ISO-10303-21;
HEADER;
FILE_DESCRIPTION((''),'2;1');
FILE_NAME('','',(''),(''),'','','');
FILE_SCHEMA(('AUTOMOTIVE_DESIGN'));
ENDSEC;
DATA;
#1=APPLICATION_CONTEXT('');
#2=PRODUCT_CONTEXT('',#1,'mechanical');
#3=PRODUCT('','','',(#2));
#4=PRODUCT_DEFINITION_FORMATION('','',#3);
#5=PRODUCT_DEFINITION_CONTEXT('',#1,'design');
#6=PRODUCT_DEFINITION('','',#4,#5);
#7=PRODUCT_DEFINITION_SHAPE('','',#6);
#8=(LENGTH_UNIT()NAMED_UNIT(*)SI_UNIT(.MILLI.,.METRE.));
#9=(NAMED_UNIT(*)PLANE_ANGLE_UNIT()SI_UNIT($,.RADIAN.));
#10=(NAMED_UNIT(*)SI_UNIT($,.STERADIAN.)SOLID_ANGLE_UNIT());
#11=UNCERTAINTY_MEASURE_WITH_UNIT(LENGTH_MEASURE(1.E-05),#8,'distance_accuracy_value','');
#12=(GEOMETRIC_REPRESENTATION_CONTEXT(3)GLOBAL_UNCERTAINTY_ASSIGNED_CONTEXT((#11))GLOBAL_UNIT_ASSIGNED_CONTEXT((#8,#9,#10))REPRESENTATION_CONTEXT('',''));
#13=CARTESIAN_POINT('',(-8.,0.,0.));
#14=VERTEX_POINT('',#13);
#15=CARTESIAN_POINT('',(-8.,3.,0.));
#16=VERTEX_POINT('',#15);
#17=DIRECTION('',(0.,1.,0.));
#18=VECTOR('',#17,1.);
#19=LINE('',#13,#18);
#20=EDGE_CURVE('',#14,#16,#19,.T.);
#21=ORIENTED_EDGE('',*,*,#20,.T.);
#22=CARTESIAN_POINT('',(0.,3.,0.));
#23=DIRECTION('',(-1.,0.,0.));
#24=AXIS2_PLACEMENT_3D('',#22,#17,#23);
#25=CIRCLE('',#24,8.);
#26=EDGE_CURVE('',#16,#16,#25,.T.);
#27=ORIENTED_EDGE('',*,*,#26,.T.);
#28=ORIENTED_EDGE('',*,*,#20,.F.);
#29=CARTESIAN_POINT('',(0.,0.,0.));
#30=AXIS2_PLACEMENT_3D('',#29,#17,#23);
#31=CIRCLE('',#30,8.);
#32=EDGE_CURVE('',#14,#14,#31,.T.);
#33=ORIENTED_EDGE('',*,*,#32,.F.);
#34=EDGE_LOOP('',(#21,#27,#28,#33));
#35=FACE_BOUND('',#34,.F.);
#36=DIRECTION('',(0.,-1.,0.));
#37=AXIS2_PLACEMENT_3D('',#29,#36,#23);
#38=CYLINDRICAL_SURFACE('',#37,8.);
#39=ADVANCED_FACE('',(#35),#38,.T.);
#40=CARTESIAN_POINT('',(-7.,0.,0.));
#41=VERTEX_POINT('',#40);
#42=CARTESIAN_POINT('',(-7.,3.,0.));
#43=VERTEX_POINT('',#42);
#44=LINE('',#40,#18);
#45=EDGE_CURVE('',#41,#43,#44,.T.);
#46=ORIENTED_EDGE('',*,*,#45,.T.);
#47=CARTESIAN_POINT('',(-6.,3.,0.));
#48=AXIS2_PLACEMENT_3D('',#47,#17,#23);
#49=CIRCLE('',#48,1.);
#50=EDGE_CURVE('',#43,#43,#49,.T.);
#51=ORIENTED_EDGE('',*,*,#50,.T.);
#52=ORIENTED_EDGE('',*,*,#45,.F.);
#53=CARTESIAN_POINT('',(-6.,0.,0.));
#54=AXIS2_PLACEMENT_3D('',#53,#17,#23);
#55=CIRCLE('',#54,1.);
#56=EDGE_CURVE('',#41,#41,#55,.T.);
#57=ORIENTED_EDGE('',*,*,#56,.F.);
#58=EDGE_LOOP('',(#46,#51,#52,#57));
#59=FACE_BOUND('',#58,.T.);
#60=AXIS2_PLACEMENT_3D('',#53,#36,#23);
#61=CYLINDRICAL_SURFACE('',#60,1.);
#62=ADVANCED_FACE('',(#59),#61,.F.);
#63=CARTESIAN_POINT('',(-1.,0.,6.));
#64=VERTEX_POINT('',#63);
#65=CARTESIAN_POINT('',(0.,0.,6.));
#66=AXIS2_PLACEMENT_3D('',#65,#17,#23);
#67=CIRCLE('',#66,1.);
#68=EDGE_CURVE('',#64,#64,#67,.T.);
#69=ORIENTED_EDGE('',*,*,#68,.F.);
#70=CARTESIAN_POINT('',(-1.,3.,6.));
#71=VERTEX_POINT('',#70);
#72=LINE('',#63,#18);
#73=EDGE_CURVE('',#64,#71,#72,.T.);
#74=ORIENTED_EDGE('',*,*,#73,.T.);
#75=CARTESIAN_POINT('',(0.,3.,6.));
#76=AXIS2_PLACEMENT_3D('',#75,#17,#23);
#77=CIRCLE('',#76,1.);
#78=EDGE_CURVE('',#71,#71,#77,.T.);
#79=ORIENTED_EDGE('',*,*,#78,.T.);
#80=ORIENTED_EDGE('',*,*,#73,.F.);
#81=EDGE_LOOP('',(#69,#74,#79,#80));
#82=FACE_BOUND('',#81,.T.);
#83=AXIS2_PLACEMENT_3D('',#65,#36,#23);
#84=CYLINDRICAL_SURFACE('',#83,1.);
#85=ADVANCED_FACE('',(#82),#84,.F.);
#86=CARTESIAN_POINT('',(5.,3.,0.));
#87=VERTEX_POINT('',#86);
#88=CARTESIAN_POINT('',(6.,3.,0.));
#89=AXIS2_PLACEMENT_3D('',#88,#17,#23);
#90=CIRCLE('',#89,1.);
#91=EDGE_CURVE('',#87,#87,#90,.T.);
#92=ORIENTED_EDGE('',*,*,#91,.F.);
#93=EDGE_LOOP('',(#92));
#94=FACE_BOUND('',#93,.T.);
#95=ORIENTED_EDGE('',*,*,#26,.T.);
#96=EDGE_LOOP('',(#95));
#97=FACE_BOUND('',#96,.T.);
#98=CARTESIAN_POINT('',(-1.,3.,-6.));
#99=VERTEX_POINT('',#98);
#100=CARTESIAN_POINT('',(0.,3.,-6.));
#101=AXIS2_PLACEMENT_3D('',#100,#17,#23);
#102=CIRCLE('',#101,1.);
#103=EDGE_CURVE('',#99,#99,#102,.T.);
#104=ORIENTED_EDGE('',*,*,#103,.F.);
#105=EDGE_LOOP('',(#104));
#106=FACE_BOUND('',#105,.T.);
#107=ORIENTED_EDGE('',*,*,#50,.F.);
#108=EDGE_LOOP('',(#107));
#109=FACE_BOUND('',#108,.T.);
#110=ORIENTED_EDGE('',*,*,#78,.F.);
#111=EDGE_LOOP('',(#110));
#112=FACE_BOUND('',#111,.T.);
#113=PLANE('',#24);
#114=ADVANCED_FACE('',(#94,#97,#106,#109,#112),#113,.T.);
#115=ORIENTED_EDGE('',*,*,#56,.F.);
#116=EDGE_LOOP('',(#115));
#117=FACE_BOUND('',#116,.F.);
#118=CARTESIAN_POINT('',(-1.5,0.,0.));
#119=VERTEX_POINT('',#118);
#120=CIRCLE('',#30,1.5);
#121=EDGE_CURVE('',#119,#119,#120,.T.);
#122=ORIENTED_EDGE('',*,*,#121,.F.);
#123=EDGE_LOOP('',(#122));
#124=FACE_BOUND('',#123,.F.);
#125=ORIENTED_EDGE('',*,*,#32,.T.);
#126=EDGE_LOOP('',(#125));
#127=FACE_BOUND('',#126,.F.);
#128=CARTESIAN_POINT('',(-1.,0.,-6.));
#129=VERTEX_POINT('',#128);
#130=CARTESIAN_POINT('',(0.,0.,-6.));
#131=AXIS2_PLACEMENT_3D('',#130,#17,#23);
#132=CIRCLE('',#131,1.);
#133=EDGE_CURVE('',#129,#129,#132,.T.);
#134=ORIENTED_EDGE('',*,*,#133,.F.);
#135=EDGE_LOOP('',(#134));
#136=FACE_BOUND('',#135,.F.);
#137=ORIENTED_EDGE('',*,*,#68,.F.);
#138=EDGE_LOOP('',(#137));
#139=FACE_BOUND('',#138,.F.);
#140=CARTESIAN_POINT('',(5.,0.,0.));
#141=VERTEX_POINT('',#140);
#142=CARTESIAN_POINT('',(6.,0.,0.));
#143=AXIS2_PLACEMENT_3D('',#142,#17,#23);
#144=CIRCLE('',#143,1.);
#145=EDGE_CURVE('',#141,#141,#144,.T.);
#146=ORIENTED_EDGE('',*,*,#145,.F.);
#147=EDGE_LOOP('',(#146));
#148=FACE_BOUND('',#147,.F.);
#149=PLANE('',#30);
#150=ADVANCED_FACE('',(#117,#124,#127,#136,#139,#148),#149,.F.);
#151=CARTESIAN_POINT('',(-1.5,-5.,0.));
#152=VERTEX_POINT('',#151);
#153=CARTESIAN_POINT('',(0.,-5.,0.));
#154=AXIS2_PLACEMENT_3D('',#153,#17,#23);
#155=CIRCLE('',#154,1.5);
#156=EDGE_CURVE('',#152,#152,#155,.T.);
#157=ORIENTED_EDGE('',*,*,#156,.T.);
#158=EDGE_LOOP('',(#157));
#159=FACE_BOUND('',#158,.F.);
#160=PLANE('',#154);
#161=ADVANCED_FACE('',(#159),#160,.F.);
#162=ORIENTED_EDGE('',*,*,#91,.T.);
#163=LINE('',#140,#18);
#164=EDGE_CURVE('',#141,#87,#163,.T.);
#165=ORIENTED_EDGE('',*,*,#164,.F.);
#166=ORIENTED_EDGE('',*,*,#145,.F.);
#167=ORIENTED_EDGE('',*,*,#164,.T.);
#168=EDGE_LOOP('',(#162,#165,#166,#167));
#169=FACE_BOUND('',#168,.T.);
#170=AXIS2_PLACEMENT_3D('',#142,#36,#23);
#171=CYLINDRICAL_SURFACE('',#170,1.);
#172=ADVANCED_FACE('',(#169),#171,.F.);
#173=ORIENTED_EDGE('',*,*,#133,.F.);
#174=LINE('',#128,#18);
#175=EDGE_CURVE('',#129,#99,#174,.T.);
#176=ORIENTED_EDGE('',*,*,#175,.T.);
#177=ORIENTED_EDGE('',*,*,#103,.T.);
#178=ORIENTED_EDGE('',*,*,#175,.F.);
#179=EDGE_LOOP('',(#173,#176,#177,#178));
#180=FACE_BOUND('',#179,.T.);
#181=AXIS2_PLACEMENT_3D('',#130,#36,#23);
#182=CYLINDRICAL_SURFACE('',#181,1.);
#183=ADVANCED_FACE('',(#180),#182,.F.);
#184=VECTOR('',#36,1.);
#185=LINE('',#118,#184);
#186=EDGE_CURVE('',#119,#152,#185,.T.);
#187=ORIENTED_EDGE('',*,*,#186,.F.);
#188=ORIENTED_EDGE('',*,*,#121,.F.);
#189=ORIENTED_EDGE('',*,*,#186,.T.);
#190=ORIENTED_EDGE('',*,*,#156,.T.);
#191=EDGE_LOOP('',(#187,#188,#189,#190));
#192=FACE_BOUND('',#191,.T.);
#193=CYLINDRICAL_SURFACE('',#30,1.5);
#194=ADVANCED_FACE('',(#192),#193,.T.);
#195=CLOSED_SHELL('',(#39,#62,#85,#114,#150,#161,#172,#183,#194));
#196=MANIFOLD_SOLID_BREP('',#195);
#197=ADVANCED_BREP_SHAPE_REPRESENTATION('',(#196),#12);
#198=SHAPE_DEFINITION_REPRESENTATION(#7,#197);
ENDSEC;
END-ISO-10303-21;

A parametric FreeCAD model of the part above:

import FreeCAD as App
import Part
import Sketcher
Q = App.Units.Quantity

doc = App.newDocument("Part")
body = doc.addObject("PartDesign::Body", "Body")

# Sketch on XZ plane
sketch1 = body.newObject("Sketcher::SketchObject", "Sketch")
sketch1.AttachmentSupport = (doc.getObject("XZ_Plane"), [""])
sketch1.MapMode = "FlatFace"
sketch1.addGeometry(Part.Circle(App.Vector(0, 0, 0), App.Vector(0, 0, 1), 8), False)
sketch1.addGeometry(Part.Circle(App.Vector(0, -6, 0), App.Vector(0, 0, 1), 1), False)
sketch1.addGeometry(Part.Circle(App.Vector(6, 0, 0), App.Vector(0, 0, 1), 1), False)
sketch1.addGeometry(Part.Circle(App.Vector(0, 0, 0), App.Vector(0, 0, 1), 1.5), False)
sketch1.addGeometry(Part.Circle(App.Vector(-6, 0, 0), App.Vector(0, 0, 1), 1), False)
sketch1.addGeometry(Part.Circle(App.Vector(0, 6, 0), App.Vector(0, 0, 1), 1), False)
sketch1.addConstraint(Sketcher.Constraint("Coincident", 0, 3, -1, 1))
sketch1.addConstraint(Sketcher.Constraint("Coincident", 3, 3, -1, 1))
sketch1.addConstraint(Sketcher.Constraint("Equal", 1, 2))
sketch1.addConstraint(Sketcher.Constraint("Equal", 2, 4))
sketch1.addConstraint(Sketcher.Constraint("Equal", 4, 5))
sketch1.addConstraint(Sketcher.Constraint("Symmetric", 2, 3, 4, 3, -1, 1))
sketch1.addConstraint(Sketcher.Constraint("Symmetric", 1, 3, 5, 3, -1, 1))
sketch1.addConstraint(Sketcher.Constraint("PointOnObject", 1, 3, -2))
sketch1.addConstraint(Sketcher.Constraint("PointOnObject", 2, 3, -1))
sketch1.addConstraint(Sketcher.Constraint("Diameter", 0, Q("16 mm")))
sketch1.addConstraint(Sketcher.Constraint("Diameter", 1, Q("2 mm")))
sketch1.addConstraint(Sketcher.Constraint("Diameter", 3, Q("3 mm")))
sketch1.addConstraint(Sketcher.Constraint("DistanceY", 1, 3, -1, 1, Q("6 mm")))
sketch1.addConstraint(Sketcher.Constraint("DistanceX", -1, 1, 2, 3, Q("6 mm")))
pad1 = body.newObject("PartDesign::Pad", "Pad")
pad1.Profile = sketch1
pad1.Length = 3
pad1.Reversed = True

# Sketch on XZ plane
sketch2 = body.newObject("Sketcher::SketchObject", "Sketch001")
sketch2.AttachmentSupport = (doc.getObject("XZ_Plane"), [""])
sketch2.MapMode = "FlatFace"
sketch2.addGeometry(Part.Circle(App.Vector(0, 0, 0), App.Vector(0, 0, 1), 1.5), False)
sketch2.addConstraint(Sketcher.Constraint("Coincident", 0, 3, -1, 1))
sketch2.addConstraint(Sketcher.Constraint("Diameter", 0, Q("3 mm")))
pad2 = body.newObject("PartDesign::Pad", "Pad001")
pad2.Profile = sketch2
pad2.Type = "TwoLengths"
pad2.Length = 3
pad2.Length2 = 5
pad2.Reversed = True

doc.recompute()
